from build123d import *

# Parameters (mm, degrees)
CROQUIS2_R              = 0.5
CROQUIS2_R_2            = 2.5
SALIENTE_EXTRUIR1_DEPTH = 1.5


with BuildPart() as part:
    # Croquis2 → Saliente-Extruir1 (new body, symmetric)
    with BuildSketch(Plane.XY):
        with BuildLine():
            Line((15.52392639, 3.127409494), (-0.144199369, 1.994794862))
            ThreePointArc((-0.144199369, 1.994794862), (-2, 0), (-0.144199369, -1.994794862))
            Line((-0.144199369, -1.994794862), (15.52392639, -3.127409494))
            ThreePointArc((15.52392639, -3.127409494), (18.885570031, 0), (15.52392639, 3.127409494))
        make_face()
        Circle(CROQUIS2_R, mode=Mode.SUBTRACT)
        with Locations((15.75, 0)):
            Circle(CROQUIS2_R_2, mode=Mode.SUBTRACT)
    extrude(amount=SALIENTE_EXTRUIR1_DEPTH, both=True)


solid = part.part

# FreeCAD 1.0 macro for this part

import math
import FreeCAD as App
import Part
import Sketcher
from FreeCAD import Vector
Q = App.Units.Quantity

doc = App.newDocument("Part")
params = doc.addObject("Spreadsheet::Sheet", "Params")
for row, (alias, value) in enumerate([
    ("sketch1_diameter", "1 mm"),
    ("sketch1_diameter2", "5 mm"),
    ("sketch1_radius", "2 mm"),
    ("pad1_length", "3 mm"),
], start=1):
    params.set(f"A{row}", alias)
    params.set(f"B{row}", "=" + value)
    params.setAlias(f"B{row}", alias)

body = doc.addObject("PartDesign::Body", "Body")

sketch1 = body.newObject("Sketcher::SketchObject", "Sketch")
sketch1.AttachmentSupport = (doc.getObject("XY_Plane"), [""])
sketch1.MapMode = "FlatFace"
sketch1.addGeometry([
    Part.LineSegment(Vector(15.523926, 3.127409, 0), Vector(-0.144199, 1.994795, 0)),
    Part.ArcOfCircle(Part.Circle(Vector(0, 0, 0), Vector(0, 0, 1), 2), math.radians(94.134595), math.radians(265.865405)),
    Part.LineSegment(Vector(-0.144199, -1.994795, 0), Vector(15.523926, -3.127409, 0)),
    Part.ArcOfCircle(Part.Circle(Vector(15.75, 0, 0), Vector(0, 0, 1), 3.13557), math.radians(-94.134595), math.radians(94.134595)),
    Part.Circle(Vector(0, 0, 0), Vector(0, 0, 1), 0.5),
    Part.Circle(Vector(15.75, 0, 0), Vector(0, 0, 1), 2.5),
], False)
sketch1.addConstraint([
    Sketcher.Constraint("Tangent", 0, 2, 1, 1),
    Sketcher.Constraint("Tangent", 1, 2, 2, 1),
    Sketcher.Constraint("Tangent", 2, 2, 3, 1),
    Sketcher.Constraint("Tangent", 3, 2, 0, 1),
    Sketcher.Constraint("Coincident", 1, 3, -1, 1),
    Sketcher.Constraint("Coincident", 4, 3, -1, 1),
    Sketcher.Constraint("Coincident", 5, 3, 3, 3),
    Sketcher.Constraint("PointOnObject", 3, 3, -1),
    Sketcher.Constraint("Diameter", 4, Q("1 mm")),
    Sketcher.Constraint("Diameter", 5, Q("5 mm")),
    Sketcher.Constraint("Radius", 1, Q("2 mm")),
    Sketcher.Constraint("DistanceX", -1, 1, 3, 3, Q("15.75 mm")),
    Sketcher.Constraint("Radius", 3, Q("3.13557 mm")),
])
sketch1.setExpression("Constraints[8]", "Params.sketch1_diameter")
sketch1.setExpression("Constraints[9]", "Params.sketch1_diameter2")
sketch1.setExpression("Constraints[10]", "Params.sketch1_radius")
pad1 = body.newObject("PartDesign::Pad", "Pad")
pad1.Profile = sketch1
pad1.setExpression("Length", "Params.pad1_length")
pad1.Midplane = True

doc.recompute()
